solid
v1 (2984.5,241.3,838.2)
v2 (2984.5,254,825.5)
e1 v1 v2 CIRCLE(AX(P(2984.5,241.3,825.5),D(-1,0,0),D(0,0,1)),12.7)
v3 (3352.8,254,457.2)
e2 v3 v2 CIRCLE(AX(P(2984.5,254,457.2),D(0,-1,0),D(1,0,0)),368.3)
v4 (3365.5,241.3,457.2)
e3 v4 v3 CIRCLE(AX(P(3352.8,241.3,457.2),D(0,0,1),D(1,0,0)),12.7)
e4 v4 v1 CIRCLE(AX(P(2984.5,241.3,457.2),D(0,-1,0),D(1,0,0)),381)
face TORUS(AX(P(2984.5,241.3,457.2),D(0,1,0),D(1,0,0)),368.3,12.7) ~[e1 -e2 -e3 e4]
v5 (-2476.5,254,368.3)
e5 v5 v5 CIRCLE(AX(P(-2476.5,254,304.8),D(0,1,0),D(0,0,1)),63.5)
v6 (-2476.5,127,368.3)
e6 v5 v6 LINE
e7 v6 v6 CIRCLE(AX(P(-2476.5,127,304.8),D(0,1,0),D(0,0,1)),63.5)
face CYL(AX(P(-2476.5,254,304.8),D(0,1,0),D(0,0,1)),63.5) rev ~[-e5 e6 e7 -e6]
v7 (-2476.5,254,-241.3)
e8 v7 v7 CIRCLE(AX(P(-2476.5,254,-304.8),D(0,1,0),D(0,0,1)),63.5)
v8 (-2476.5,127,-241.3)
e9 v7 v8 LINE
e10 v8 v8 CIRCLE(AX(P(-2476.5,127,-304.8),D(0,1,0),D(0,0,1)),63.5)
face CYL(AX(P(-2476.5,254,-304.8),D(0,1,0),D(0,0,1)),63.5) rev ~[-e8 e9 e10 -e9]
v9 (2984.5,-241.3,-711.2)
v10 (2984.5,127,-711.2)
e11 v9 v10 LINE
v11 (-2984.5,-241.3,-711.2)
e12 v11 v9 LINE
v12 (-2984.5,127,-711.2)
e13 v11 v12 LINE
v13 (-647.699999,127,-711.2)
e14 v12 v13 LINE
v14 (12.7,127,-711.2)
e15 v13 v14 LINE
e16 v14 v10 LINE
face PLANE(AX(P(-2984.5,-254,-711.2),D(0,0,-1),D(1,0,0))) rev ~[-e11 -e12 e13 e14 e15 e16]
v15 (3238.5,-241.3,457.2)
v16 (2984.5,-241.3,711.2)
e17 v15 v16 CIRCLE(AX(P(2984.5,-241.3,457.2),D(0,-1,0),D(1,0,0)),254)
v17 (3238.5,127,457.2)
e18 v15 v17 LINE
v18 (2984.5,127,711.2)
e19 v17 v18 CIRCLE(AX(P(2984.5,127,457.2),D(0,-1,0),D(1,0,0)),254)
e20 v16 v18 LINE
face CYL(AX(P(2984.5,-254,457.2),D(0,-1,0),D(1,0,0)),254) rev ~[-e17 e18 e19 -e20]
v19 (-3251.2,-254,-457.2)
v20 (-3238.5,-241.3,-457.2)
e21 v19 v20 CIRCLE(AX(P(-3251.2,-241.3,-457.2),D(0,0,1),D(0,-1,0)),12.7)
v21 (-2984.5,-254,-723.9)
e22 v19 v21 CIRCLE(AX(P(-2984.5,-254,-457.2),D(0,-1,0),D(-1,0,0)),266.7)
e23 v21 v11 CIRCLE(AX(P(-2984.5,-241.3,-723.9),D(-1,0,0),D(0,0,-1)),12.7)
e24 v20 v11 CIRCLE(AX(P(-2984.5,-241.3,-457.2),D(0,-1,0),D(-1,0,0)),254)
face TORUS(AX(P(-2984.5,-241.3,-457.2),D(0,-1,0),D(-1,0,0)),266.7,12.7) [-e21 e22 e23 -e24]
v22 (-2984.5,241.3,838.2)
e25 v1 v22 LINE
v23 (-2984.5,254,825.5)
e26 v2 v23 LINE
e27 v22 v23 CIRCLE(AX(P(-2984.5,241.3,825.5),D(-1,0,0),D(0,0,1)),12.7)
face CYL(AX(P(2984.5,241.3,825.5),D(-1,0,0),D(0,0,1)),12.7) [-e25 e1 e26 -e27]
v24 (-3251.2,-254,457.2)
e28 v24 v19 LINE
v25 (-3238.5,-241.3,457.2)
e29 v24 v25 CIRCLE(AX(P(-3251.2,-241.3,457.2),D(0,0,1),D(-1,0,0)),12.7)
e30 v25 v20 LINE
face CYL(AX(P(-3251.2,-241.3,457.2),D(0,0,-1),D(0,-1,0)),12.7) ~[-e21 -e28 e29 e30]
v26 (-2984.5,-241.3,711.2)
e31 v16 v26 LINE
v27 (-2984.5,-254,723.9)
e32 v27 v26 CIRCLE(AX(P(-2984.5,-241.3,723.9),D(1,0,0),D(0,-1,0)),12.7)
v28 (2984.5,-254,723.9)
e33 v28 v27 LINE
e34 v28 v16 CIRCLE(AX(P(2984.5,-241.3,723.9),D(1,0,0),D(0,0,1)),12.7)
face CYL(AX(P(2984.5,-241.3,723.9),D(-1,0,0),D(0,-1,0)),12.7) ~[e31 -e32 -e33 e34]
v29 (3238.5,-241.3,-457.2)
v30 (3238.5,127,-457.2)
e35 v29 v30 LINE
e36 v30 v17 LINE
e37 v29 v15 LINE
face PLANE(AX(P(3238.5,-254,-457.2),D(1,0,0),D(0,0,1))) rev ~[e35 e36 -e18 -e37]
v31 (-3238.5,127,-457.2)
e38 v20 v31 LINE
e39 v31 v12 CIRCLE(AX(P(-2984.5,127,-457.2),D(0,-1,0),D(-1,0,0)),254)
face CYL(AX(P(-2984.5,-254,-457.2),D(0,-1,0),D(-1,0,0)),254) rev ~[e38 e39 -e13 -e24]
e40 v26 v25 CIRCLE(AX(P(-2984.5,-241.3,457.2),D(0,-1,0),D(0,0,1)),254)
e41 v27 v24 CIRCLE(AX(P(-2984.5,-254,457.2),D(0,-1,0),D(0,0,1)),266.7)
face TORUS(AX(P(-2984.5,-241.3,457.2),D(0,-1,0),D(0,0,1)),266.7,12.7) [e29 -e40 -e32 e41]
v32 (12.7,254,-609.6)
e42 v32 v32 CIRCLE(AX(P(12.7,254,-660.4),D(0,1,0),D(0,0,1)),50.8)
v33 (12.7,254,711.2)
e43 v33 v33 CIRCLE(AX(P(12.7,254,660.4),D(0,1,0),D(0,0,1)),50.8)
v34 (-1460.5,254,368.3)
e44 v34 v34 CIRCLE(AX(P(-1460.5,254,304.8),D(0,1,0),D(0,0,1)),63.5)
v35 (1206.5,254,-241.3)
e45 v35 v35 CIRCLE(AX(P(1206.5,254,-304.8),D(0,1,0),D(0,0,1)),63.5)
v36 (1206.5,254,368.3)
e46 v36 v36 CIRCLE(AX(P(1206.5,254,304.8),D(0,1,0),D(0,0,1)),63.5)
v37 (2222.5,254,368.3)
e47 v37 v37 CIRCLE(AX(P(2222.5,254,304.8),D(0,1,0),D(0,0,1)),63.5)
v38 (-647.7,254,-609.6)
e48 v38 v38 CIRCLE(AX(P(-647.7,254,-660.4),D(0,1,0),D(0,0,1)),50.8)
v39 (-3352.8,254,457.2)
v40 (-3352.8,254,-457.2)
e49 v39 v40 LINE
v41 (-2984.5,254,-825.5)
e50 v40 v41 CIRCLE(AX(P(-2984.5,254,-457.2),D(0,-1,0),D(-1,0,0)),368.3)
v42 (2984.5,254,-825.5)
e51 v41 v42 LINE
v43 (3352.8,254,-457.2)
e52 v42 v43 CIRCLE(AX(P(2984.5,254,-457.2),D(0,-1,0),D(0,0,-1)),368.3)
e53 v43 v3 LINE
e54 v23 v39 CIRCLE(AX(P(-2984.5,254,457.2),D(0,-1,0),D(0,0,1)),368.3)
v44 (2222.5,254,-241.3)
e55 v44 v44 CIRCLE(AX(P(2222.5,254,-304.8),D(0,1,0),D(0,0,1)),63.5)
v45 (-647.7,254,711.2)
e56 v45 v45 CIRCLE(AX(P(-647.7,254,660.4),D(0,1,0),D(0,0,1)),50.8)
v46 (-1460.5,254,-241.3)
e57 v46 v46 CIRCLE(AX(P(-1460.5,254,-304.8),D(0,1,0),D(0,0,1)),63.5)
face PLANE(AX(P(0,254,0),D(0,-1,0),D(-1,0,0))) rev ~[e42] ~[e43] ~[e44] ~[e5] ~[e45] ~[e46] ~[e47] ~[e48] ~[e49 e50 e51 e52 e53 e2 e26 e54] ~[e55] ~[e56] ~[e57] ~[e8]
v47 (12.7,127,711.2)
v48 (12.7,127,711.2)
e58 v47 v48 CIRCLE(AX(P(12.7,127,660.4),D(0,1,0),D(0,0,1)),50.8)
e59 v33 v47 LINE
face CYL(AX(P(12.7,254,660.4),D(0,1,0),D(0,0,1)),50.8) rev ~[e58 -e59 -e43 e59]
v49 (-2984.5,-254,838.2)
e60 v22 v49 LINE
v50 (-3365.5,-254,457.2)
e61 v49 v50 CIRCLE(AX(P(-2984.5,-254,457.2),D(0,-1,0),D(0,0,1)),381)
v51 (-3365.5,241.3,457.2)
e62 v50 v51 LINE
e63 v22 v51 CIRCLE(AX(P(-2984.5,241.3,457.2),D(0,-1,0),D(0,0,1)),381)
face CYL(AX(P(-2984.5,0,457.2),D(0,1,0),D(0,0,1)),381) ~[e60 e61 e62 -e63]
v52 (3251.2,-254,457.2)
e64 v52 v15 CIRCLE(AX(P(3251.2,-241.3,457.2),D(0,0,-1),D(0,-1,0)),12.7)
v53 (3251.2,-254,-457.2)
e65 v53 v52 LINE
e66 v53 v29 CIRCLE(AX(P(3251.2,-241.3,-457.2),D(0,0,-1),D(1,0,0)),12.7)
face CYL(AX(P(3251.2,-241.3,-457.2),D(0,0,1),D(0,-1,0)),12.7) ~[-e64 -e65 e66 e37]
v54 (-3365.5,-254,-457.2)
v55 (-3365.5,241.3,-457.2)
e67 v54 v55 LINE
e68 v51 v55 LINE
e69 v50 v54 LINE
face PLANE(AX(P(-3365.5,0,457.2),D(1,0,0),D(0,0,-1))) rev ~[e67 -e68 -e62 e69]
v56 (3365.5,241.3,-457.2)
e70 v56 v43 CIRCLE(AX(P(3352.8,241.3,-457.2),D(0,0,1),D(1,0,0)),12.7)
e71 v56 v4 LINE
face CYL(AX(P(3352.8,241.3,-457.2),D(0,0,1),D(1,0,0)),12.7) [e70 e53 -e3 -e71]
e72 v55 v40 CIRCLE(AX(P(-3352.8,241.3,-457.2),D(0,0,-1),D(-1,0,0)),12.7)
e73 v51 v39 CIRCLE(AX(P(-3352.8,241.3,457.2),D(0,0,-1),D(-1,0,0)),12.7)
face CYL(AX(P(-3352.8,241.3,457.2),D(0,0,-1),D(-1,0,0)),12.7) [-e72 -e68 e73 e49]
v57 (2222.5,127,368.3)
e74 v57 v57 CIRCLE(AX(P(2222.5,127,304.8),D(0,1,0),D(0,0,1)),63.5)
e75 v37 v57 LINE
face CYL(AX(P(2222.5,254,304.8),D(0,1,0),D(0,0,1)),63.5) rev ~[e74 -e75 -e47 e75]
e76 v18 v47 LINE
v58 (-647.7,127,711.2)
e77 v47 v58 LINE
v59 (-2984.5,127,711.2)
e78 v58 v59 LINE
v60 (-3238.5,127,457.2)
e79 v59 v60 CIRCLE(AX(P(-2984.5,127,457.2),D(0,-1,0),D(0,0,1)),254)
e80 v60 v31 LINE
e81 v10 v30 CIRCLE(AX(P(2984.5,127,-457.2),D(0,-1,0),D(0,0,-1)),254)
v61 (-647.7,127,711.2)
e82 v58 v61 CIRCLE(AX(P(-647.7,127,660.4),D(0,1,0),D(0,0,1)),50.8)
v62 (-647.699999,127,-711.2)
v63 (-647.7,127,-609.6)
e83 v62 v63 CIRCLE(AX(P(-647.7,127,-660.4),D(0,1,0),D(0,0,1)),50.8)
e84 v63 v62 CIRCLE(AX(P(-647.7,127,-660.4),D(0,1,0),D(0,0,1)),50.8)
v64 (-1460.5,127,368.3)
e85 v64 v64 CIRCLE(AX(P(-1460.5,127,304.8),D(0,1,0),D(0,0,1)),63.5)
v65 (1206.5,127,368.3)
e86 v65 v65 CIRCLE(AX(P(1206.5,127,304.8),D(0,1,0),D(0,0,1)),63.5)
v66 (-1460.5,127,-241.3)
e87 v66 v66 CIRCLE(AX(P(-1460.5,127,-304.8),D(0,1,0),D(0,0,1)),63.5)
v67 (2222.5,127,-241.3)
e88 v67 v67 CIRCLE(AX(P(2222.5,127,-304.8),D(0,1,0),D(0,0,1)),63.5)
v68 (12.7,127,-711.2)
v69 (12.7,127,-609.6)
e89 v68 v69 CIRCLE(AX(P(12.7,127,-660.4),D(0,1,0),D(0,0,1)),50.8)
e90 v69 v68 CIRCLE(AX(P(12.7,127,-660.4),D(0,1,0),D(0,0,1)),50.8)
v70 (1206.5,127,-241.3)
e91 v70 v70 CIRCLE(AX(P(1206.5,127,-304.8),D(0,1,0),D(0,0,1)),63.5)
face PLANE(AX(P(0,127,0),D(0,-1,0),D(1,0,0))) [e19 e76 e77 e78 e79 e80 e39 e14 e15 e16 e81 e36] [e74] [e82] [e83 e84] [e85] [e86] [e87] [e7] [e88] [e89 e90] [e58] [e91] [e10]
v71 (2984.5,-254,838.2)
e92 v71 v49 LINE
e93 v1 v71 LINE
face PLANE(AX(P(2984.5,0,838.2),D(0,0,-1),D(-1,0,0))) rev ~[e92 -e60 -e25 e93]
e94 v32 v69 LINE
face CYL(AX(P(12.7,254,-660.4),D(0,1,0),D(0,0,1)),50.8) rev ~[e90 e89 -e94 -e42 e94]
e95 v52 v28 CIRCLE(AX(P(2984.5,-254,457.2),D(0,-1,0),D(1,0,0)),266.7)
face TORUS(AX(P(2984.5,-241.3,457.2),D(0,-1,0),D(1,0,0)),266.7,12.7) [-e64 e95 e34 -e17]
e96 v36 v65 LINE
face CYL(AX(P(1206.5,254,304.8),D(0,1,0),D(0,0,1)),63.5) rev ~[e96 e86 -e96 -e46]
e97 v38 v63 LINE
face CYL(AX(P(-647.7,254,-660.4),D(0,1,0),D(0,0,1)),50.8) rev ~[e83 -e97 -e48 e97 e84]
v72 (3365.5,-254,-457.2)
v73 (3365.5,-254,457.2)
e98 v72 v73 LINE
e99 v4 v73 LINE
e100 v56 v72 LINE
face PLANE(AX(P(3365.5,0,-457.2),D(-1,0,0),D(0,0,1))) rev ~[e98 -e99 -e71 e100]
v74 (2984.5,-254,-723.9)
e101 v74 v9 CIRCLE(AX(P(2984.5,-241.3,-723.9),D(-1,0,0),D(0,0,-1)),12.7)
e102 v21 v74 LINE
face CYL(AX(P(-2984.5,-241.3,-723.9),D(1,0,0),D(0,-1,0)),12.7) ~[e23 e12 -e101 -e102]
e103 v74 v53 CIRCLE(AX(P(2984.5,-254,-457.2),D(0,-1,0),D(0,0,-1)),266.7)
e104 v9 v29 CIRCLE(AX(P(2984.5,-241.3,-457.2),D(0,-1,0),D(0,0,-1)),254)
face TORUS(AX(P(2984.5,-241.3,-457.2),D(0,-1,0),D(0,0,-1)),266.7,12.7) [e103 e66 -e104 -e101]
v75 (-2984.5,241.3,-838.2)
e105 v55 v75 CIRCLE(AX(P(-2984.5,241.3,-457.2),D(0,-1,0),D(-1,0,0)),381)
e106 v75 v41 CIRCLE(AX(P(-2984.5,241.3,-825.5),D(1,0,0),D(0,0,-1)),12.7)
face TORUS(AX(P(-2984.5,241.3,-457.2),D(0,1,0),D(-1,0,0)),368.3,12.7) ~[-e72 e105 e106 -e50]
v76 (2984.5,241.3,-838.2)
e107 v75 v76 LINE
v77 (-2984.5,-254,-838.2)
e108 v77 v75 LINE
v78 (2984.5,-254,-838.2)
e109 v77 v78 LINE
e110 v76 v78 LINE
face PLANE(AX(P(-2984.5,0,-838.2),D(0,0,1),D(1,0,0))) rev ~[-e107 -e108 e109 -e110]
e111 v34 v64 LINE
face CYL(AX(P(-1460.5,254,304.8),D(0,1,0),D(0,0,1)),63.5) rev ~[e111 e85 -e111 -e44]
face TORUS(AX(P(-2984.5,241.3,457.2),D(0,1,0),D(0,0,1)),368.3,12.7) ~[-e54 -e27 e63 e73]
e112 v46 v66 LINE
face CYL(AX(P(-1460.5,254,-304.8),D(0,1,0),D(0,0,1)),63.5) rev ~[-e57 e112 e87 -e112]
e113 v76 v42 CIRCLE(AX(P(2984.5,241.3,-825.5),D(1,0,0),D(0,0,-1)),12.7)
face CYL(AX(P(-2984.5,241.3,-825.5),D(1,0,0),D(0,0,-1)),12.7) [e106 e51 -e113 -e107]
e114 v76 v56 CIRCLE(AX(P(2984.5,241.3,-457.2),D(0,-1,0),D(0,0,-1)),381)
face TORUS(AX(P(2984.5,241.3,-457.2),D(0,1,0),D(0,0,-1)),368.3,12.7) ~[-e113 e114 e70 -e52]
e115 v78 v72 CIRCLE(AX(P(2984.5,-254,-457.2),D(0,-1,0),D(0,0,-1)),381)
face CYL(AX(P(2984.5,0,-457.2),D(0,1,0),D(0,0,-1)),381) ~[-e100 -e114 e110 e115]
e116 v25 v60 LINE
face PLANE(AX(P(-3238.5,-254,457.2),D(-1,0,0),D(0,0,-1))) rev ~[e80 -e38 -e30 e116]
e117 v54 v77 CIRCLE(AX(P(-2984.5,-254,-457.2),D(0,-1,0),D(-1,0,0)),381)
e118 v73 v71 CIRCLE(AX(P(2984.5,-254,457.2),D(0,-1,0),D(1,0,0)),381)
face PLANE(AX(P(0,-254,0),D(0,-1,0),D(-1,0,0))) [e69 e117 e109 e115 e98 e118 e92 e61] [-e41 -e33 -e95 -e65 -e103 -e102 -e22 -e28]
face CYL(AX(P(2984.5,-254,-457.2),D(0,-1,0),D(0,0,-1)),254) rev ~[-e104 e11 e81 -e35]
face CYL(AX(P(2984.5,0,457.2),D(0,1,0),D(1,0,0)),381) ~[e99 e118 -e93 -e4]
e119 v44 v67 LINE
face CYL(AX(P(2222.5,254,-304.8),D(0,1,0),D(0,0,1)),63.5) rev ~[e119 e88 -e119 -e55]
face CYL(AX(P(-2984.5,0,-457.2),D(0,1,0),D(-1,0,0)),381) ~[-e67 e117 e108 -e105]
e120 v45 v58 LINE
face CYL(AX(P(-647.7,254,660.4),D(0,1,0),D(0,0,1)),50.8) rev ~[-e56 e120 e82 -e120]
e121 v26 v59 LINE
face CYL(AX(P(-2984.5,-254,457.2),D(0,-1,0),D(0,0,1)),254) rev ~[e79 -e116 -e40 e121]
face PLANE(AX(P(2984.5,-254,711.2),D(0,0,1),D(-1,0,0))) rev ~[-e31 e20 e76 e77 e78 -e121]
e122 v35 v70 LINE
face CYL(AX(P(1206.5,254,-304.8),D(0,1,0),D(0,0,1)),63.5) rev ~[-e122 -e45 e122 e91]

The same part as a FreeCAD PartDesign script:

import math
import FreeCAD as App
import Part
import Sketcher

V = App.Vector
Q = App.Units.Quantity


def edges_at(feature, points):
    """Names of the edges that pass closest to the given points."""
    edges = feature.Shape.Edges
    near = lambda p: min(range(len(edges)), key=lambda i: edges[i].distToShape(Part.Vertex(*p))[0])
    return sorted({f"Edge{near(p) + 1}" for p in points})

doc = App.newDocument("Part")
body = doc.addObject("PartDesign::Body", "Body")

sketch1 = doc.addObject("Sketcher::SketchObject", "Sketch")
body.addObject(sketch1)
sketch1.AttachmentSupport = (doc.XZ_Plane, [""])
sketch1.MapMode = "FlatFace"
sketch1.addGeometry(Part.LineSegment(V(2984.5, -838.2, 0), V(-2984.5, -838.2, 0)), False)
sketch1.addGeometry(Part.ArcOfCircle(Part.Circle(V(-2984.5, -457.2, 0), V(0, 0, 1), 381), math.radians(180), math.radians(270)), False)
sketch1.addGeometry(Part.LineSegment(V(-3365.5, -457.2, 0), V(-3365.5, 457.2, 0)), False)
sketch1.addGeometry(Part.ArcOfCircle(Part.Circle(V(-2984.5, 457.2, 0), V(0, 0, 1), 381), math.radians(90), math.radians(180)), False)
sketch1.addGeometry(Part.LineSegment(V(-2984.5, 838.2, 0), V(2984.5, 838.2, 0)), False)
sketch1.addGeometry(Part.ArcOfCircle(Part.Circle(V(2984.5, 457.2, 0), V(0, 0, 1), 381), math.radians(0), math.radians(90)), False)
sketch1.addGeometry(Part.LineSegment(V(3365.5, 457.2, 0), V(3365.5, -457.2, 0)), False)
sketch1.addGeometry(Part.ArcOfCircle(Part.Circle(V(2984.5, -457.2, 0), V(0, 0, 1), 381), math.radians(-90), math.radians(0)), False)
sketch1.addConstraint(Sketcher.Constraint("Tangent", 0, 2, 1, 2))
sketch1.addConstraint(Sketcher.Constraint("Tangent", 1, 1, 2, 1))
sketch1.addConstraint(Sketcher.Constraint("Tangent", 2, 2, 3, 2))
sketch1.addConstraint(Sketcher.Constraint("Tangent", 3, 1, 4, 1))
sketch1.addConstraint(Sketcher.Constraint("Tangent", 4, 2, 5, 2))
sketch1.addConstraint(Sketcher.Constraint("Tangent", 5, 1, 6, 1))
sketch1.addConstraint(Sketcher.Constraint("Tangent", 6, 2, 7, 2))
sketch1.addConstraint(Sketcher.Constraint("Tangent", 7, 1, 0, 1))
sketch1.addConstraint(Sketcher.Constraint("Horizontal", 0))
sketch1.addConstraint(Sketcher.Constraint("Vertical", 2))
sketch1.addConstraint(Sketcher.Constraint("Horizontal", 4))
sketch1.addConstraint(Sketcher.Constraint("Vertical", 6))
sketch1.addConstraint(Sketcher.Constraint("Equal", 1, 3))
sketch1.addConstraint(Sketcher.Constraint("Equal", 3, 5))
sketch1.addConstraint(Sketcher.Constraint("Equal", 5, 7))
sketch1.addConstraint(Sketcher.Constraint("Symmetric", 1, 3, 5, 3, -1, 1))
sketch1.addConstraint(Sketcher.Constraint("Radius", 1, Q("15 in")))
sketch1.addConstraint(Sketcher.Constraint("DistanceX", 0, 2, 0, 1, Q("235 in")))
sketch1.addConstraint(Sketcher.Constraint("DistanceY", 2, 1, 2, 2, Q("36 in")))
pad1 = doc.addObject("PartDesign::Pad", "Pad")
body.addObject(pad1)
pad1.Profile = sketch1
pad1.Length = Q("20 in")
pad1.Midplane = True

sketch2 = doc.addObject("Sketcher::SketchObject", "Sketch001")
body.addObject(sketch2)
sketch2.AttachmentSupport = (doc.XZ_Plane, [""])
sketch2.MapMode = "FlatFace"
sketch2.AttachmentOffset = App.Placement(V(0, 0, 10 * 25.4), App.Rotation())
sketch2.addGeometry(Part.LineSegment(V(3238.5, -457.2, 0), V(3238.5, 457.2, 0)), False)
sketch2.addGeometry(Part.ArcOfCircle(Part.Circle(V(2984.5, 457.2, 0), V(0, 0, 1), 254), math.radians(0), math.radians(90)), False)
sketch2.addGeometry(Part.LineSegment(V(2984.5, 711.2, 0), V(-2984.5, 711.2, 0)), False)
sketch2.addGeometry(Part.ArcOfCircle(Part.Circle(V(-2984.5, 457.2, 0), V(0, 0, 1), 254), math.radians(90), math.radians(180)), False)
sketch2.addGeometry(Part.LineSegment(V(-3238.5, 457.2, 0), V(-3238.5, -457.2, 0)), False)
sketch2.addGeometry(Part.ArcOfCircle(Part.Circle(V(-2984.5, -457.2, 0), V(0, 0, 1), 254), math.radians(-180), math.radians(-90)), False)
sketch2.addGeometry(Part.LineSegment(V(-2984.5, -711.2, 0), V(2984.5, -711.2, 0)), False)
sketch2.addGeometry(Part.ArcOfCircle(Part.Circle(V(2984.5, -457.2, 0), V(0, 0, 1), 254), math.radians(-90), math.radians(0)), False)
sketch2.addConstraint(Sketcher.Constraint("Tangent", 0, 2, 1, 1))
sketch2.addConstraint(Sketcher.Constraint("Tangent", 1, 2, 2, 1))
sketch2.addConstraint(Sketcher.Constraint("Tangent", 2, 2, 3, 1))
sketch2.addConstraint(Sketcher.Constraint("Tangent", 3, 2, 4, 1))
sketch2.addConstraint(Sketcher.Constraint("Tangent", 4, 2, 5, 1))
sketch2.addConstraint(Sketcher.Constraint("Tangent", 5, 2, 6, 1))
sketch2.addConstraint(Sketcher.Constraint("Tangent", 6, 2, 7, 1))
sketch2.addConstraint(Sketcher.Constraint("Tangent", 7, 2, 0, 1))
sketch2.addConstraint(Sketcher.Constraint("Vertical", 0))
sketch2.addConstraint(Sketcher.Constraint("Horizontal", 2))
sketch2.addConstraint(Sketcher.Constraint("Vertical", 4))
sketch2.addConstraint(Sketcher.Constraint("Horizontal", 6))
sketch2.addConstraint(Sketcher.Constraint("Equal", 1, 3))
sketch2.addConstraint(Sketcher.Constraint("Equal", 3, 5))
sketch2.addConstraint(Sketcher.Constraint("Equal", 5, 7))
sketch2.addConstraint(Sketcher.Constraint("Symmetric", 1, 3, 5, 3, -1, 1))
sketch2.addConstraint(Sketcher.Constraint("Radius", 1, Q("10 in")))
sketch2.addConstraint(Sketcher.Constraint("DistanceX", 2, 2, 2, 1, Q("235 in")))
sketch2.addConstraint(Sketcher.Constraint("DistanceY", 0, 1, 0, 2, Q("36 in")))
pocket1 = doc.addObject("PartDesign::Pocket", "Pocket")
body.addObject(pocket1)
pocket1.Profile = sketch2
pocket1.Length = Q("15 in")

sketch3 = doc.addObject("Sketcher::SketchObject", "Sketch002")
body.addObject(sketch3)
sketch3.AttachmentSupport = (doc.XZ_Plane, [""])
sketch3.MapMode = "FlatFace"
sketch3.AttachmentOffset = App.Placement(V(0, 0, -10 * 25.4), App.Rotation())
sketch3.addGeometry(Part.Circle(V(-2476.5, -304.8, 0), V(0, 0, 1), 63.5), False)
sketch3.addGeometry(Part.Circle(V(-1460.5, -304.8, 0), V(0, 0, 1), 63.5), False)
sketch3.addGeometry(Part.Circle(V(-647.7, -660.4, 0), V(0, 0, 1), 50.8), False)
sketch3.addGeometry(Part.Circle(V(12.7, -660.4, 0), V(0, 0, 1), 50.8), False)
sketch3.addGeometry(Part.Circle(V(1206.5, -304.8, 0), V(0, 0, 1), 63.5), False)
sketch3.addGeometry(Part.Circle(V(2222.5, -304.8, 0), V(0, 0, 1), 63.5), False)
sketch3.addGeometry(Part.Circle(V(-2476.5, 304.8, 0), V(0, 0, 1), 63.5), False)
sketch3.addGeometry(Part.Circle(V(-1460.5, 304.8, 0), V(0, 0, 1), 63.5), False)
sketch3.addGeometry(Part.Circle(V(-647.7, 660.4, 0), V(0, 0, 1), 50.8), False)
sketch3.addGeometry(Part.Circle(V(12.7, 660.4, 0), V(0, 0, 1), 50.8), False)
sketch3.addGeometry(Part.Circle(V(1206.5, 304.8, 0), V(0, 0, 1), 63.5), False)
sketch3.addGeometry(Part.Circle(V(2222.5, 304.8, 0), V(0, 0, 1), 63.5), False)
sketch3.addConstraint(Sketcher.Constraint("Equal", 0, 1))
sketch3.addConstraint(Sketcher.Constraint("Equal", 2, 3))
sketch3.addConstraint(Sketcher.Constraint("Equal", 1, 4))
sketch3.addConstraint(Sketcher.Constraint("Equal", 4, 5))
sketch3.addConstraint(Sketcher.Constraint("Equal", 5, 6))
sketch3.addConstraint(Sketcher.Constraint("Equal", 6, 7))
sketch3.addConstraint(Sketcher.Constraint("Equal", 3, 8))
sketch3.addConstraint(Sketcher.Constraint("Equal", 8, 9))
sketch3.addConstraint(Sketcher.Constraint("Equal", 7, 10))
sketch3.addConstraint(Sketcher.Constraint("Equal", 10, 11))
sketch3.addConstraint(Sketcher.Constraint("Symmetric", 0, 3, 6, 3, -1))
sketch3.addConstraint(Sketcher.Constraint("Symmetric", 1, 3, 7, 3, -1))
sketch3.addConstraint(Sketcher.Constraint("Symmetric", 2, 3, 8, 3, -1))
sketch3.addConstraint(Sketcher.Constraint("Symmetric", 3, 3, 9, 3, -1))
sketch3.addConstraint(Sketcher.Constraint("Symmetric", 4, 3, 10, 3, -1))
sketch3.addConstraint(Sketcher.Constraint("Symmetric", 5, 3, 11, 3, -1))
sketch3.addConstraint(Sketcher.Constraint("Horizontal", 0, 3, 1, 3))
sketch3.addConstraint(Sketcher.Constraint("Horizontal", 2, 3, 3, 3))
sketch3.addConstraint(Sketcher.Constraint("Horizontal", 1, 3, 4, 3))
sketch3.addConstraint(Sketcher.Constraint("Horizontal", 4, 3, 5, 3))
sketch3.addConstraint(Sketcher.Constraint("Diameter", 0, Q("5 in")))
sketch3.addConstraint(Sketcher.Constraint("Diameter", 2, Q("4 in")))
sketch3.addConstraint(Sketcher.Constraint("DistanceY", 0, 3, -1, 1, Q("12 in")))
sketch3.addConstraint(Sketcher.Constraint("DistanceY", 2, 3, -1, 1, Q("26 in")))
sketch3.addConstraint(Sketcher.Constraint("DistanceX", 0, 3, 1, 3, Q("40 in")))
sketch3.addConstraint(Sketcher.Constraint("DistanceX", 1, 3, 2, 3, Q("32 in")))
sketch3.addConstraint(Sketcher.Constraint("DistanceX", 2, 3, 3, 3, Q("26 in")))
sketch3.addConstraint(Sketcher.Constraint("DistanceX", 3, 3, 4, 3, Q("47 in")))
sketch3.addConstraint(Sketcher.Constraint("DistanceX", 4, 3, 5, 3, Q("40 in")))
sketch3.addConstraint(Sketcher.Constraint("DistanceX", 0, 3, -1, 1, Q("97.5 in")))
pocket2 = doc.addObject("PartDesign::Pocket", "Pocket001")
body.addObject(pocket2)
pocket2.Profile = sketch3
pocket2.Length = Q("5 in")
pocket2.Reversed = True
doc.recompute()

fillet = doc.addObject("PartDesign::Fillet", "Fillet")
body.addObject(fillet)
fillet.Base = (pocket2, edges_at(pocket2, [
    (3253.908, 254, -726.608),
    (0, 254, -838.2),
    (-3253.908, 254, -726.608),
    (-3365.5, 254, 0),
    (-3253.908, 254, 726.608),
    (3164.105, -254, -636.805),
    (3238.5, -254, 0),
    (3164.105, -254, 636.805),
    (0, -254, 711.2),
    (0, 254, 838.2),
    (-3164.105, -254, 636.805),
    (-3238.5, -254, 0),
    (-3164.105, -254, -636.805),
    (0, -254, -711.2),
    (3253.908, 254, 726.608),
    (3365.5, 254, 0),
]))
fillet.Radius = Q("0.5 in")

doc.recompute()
